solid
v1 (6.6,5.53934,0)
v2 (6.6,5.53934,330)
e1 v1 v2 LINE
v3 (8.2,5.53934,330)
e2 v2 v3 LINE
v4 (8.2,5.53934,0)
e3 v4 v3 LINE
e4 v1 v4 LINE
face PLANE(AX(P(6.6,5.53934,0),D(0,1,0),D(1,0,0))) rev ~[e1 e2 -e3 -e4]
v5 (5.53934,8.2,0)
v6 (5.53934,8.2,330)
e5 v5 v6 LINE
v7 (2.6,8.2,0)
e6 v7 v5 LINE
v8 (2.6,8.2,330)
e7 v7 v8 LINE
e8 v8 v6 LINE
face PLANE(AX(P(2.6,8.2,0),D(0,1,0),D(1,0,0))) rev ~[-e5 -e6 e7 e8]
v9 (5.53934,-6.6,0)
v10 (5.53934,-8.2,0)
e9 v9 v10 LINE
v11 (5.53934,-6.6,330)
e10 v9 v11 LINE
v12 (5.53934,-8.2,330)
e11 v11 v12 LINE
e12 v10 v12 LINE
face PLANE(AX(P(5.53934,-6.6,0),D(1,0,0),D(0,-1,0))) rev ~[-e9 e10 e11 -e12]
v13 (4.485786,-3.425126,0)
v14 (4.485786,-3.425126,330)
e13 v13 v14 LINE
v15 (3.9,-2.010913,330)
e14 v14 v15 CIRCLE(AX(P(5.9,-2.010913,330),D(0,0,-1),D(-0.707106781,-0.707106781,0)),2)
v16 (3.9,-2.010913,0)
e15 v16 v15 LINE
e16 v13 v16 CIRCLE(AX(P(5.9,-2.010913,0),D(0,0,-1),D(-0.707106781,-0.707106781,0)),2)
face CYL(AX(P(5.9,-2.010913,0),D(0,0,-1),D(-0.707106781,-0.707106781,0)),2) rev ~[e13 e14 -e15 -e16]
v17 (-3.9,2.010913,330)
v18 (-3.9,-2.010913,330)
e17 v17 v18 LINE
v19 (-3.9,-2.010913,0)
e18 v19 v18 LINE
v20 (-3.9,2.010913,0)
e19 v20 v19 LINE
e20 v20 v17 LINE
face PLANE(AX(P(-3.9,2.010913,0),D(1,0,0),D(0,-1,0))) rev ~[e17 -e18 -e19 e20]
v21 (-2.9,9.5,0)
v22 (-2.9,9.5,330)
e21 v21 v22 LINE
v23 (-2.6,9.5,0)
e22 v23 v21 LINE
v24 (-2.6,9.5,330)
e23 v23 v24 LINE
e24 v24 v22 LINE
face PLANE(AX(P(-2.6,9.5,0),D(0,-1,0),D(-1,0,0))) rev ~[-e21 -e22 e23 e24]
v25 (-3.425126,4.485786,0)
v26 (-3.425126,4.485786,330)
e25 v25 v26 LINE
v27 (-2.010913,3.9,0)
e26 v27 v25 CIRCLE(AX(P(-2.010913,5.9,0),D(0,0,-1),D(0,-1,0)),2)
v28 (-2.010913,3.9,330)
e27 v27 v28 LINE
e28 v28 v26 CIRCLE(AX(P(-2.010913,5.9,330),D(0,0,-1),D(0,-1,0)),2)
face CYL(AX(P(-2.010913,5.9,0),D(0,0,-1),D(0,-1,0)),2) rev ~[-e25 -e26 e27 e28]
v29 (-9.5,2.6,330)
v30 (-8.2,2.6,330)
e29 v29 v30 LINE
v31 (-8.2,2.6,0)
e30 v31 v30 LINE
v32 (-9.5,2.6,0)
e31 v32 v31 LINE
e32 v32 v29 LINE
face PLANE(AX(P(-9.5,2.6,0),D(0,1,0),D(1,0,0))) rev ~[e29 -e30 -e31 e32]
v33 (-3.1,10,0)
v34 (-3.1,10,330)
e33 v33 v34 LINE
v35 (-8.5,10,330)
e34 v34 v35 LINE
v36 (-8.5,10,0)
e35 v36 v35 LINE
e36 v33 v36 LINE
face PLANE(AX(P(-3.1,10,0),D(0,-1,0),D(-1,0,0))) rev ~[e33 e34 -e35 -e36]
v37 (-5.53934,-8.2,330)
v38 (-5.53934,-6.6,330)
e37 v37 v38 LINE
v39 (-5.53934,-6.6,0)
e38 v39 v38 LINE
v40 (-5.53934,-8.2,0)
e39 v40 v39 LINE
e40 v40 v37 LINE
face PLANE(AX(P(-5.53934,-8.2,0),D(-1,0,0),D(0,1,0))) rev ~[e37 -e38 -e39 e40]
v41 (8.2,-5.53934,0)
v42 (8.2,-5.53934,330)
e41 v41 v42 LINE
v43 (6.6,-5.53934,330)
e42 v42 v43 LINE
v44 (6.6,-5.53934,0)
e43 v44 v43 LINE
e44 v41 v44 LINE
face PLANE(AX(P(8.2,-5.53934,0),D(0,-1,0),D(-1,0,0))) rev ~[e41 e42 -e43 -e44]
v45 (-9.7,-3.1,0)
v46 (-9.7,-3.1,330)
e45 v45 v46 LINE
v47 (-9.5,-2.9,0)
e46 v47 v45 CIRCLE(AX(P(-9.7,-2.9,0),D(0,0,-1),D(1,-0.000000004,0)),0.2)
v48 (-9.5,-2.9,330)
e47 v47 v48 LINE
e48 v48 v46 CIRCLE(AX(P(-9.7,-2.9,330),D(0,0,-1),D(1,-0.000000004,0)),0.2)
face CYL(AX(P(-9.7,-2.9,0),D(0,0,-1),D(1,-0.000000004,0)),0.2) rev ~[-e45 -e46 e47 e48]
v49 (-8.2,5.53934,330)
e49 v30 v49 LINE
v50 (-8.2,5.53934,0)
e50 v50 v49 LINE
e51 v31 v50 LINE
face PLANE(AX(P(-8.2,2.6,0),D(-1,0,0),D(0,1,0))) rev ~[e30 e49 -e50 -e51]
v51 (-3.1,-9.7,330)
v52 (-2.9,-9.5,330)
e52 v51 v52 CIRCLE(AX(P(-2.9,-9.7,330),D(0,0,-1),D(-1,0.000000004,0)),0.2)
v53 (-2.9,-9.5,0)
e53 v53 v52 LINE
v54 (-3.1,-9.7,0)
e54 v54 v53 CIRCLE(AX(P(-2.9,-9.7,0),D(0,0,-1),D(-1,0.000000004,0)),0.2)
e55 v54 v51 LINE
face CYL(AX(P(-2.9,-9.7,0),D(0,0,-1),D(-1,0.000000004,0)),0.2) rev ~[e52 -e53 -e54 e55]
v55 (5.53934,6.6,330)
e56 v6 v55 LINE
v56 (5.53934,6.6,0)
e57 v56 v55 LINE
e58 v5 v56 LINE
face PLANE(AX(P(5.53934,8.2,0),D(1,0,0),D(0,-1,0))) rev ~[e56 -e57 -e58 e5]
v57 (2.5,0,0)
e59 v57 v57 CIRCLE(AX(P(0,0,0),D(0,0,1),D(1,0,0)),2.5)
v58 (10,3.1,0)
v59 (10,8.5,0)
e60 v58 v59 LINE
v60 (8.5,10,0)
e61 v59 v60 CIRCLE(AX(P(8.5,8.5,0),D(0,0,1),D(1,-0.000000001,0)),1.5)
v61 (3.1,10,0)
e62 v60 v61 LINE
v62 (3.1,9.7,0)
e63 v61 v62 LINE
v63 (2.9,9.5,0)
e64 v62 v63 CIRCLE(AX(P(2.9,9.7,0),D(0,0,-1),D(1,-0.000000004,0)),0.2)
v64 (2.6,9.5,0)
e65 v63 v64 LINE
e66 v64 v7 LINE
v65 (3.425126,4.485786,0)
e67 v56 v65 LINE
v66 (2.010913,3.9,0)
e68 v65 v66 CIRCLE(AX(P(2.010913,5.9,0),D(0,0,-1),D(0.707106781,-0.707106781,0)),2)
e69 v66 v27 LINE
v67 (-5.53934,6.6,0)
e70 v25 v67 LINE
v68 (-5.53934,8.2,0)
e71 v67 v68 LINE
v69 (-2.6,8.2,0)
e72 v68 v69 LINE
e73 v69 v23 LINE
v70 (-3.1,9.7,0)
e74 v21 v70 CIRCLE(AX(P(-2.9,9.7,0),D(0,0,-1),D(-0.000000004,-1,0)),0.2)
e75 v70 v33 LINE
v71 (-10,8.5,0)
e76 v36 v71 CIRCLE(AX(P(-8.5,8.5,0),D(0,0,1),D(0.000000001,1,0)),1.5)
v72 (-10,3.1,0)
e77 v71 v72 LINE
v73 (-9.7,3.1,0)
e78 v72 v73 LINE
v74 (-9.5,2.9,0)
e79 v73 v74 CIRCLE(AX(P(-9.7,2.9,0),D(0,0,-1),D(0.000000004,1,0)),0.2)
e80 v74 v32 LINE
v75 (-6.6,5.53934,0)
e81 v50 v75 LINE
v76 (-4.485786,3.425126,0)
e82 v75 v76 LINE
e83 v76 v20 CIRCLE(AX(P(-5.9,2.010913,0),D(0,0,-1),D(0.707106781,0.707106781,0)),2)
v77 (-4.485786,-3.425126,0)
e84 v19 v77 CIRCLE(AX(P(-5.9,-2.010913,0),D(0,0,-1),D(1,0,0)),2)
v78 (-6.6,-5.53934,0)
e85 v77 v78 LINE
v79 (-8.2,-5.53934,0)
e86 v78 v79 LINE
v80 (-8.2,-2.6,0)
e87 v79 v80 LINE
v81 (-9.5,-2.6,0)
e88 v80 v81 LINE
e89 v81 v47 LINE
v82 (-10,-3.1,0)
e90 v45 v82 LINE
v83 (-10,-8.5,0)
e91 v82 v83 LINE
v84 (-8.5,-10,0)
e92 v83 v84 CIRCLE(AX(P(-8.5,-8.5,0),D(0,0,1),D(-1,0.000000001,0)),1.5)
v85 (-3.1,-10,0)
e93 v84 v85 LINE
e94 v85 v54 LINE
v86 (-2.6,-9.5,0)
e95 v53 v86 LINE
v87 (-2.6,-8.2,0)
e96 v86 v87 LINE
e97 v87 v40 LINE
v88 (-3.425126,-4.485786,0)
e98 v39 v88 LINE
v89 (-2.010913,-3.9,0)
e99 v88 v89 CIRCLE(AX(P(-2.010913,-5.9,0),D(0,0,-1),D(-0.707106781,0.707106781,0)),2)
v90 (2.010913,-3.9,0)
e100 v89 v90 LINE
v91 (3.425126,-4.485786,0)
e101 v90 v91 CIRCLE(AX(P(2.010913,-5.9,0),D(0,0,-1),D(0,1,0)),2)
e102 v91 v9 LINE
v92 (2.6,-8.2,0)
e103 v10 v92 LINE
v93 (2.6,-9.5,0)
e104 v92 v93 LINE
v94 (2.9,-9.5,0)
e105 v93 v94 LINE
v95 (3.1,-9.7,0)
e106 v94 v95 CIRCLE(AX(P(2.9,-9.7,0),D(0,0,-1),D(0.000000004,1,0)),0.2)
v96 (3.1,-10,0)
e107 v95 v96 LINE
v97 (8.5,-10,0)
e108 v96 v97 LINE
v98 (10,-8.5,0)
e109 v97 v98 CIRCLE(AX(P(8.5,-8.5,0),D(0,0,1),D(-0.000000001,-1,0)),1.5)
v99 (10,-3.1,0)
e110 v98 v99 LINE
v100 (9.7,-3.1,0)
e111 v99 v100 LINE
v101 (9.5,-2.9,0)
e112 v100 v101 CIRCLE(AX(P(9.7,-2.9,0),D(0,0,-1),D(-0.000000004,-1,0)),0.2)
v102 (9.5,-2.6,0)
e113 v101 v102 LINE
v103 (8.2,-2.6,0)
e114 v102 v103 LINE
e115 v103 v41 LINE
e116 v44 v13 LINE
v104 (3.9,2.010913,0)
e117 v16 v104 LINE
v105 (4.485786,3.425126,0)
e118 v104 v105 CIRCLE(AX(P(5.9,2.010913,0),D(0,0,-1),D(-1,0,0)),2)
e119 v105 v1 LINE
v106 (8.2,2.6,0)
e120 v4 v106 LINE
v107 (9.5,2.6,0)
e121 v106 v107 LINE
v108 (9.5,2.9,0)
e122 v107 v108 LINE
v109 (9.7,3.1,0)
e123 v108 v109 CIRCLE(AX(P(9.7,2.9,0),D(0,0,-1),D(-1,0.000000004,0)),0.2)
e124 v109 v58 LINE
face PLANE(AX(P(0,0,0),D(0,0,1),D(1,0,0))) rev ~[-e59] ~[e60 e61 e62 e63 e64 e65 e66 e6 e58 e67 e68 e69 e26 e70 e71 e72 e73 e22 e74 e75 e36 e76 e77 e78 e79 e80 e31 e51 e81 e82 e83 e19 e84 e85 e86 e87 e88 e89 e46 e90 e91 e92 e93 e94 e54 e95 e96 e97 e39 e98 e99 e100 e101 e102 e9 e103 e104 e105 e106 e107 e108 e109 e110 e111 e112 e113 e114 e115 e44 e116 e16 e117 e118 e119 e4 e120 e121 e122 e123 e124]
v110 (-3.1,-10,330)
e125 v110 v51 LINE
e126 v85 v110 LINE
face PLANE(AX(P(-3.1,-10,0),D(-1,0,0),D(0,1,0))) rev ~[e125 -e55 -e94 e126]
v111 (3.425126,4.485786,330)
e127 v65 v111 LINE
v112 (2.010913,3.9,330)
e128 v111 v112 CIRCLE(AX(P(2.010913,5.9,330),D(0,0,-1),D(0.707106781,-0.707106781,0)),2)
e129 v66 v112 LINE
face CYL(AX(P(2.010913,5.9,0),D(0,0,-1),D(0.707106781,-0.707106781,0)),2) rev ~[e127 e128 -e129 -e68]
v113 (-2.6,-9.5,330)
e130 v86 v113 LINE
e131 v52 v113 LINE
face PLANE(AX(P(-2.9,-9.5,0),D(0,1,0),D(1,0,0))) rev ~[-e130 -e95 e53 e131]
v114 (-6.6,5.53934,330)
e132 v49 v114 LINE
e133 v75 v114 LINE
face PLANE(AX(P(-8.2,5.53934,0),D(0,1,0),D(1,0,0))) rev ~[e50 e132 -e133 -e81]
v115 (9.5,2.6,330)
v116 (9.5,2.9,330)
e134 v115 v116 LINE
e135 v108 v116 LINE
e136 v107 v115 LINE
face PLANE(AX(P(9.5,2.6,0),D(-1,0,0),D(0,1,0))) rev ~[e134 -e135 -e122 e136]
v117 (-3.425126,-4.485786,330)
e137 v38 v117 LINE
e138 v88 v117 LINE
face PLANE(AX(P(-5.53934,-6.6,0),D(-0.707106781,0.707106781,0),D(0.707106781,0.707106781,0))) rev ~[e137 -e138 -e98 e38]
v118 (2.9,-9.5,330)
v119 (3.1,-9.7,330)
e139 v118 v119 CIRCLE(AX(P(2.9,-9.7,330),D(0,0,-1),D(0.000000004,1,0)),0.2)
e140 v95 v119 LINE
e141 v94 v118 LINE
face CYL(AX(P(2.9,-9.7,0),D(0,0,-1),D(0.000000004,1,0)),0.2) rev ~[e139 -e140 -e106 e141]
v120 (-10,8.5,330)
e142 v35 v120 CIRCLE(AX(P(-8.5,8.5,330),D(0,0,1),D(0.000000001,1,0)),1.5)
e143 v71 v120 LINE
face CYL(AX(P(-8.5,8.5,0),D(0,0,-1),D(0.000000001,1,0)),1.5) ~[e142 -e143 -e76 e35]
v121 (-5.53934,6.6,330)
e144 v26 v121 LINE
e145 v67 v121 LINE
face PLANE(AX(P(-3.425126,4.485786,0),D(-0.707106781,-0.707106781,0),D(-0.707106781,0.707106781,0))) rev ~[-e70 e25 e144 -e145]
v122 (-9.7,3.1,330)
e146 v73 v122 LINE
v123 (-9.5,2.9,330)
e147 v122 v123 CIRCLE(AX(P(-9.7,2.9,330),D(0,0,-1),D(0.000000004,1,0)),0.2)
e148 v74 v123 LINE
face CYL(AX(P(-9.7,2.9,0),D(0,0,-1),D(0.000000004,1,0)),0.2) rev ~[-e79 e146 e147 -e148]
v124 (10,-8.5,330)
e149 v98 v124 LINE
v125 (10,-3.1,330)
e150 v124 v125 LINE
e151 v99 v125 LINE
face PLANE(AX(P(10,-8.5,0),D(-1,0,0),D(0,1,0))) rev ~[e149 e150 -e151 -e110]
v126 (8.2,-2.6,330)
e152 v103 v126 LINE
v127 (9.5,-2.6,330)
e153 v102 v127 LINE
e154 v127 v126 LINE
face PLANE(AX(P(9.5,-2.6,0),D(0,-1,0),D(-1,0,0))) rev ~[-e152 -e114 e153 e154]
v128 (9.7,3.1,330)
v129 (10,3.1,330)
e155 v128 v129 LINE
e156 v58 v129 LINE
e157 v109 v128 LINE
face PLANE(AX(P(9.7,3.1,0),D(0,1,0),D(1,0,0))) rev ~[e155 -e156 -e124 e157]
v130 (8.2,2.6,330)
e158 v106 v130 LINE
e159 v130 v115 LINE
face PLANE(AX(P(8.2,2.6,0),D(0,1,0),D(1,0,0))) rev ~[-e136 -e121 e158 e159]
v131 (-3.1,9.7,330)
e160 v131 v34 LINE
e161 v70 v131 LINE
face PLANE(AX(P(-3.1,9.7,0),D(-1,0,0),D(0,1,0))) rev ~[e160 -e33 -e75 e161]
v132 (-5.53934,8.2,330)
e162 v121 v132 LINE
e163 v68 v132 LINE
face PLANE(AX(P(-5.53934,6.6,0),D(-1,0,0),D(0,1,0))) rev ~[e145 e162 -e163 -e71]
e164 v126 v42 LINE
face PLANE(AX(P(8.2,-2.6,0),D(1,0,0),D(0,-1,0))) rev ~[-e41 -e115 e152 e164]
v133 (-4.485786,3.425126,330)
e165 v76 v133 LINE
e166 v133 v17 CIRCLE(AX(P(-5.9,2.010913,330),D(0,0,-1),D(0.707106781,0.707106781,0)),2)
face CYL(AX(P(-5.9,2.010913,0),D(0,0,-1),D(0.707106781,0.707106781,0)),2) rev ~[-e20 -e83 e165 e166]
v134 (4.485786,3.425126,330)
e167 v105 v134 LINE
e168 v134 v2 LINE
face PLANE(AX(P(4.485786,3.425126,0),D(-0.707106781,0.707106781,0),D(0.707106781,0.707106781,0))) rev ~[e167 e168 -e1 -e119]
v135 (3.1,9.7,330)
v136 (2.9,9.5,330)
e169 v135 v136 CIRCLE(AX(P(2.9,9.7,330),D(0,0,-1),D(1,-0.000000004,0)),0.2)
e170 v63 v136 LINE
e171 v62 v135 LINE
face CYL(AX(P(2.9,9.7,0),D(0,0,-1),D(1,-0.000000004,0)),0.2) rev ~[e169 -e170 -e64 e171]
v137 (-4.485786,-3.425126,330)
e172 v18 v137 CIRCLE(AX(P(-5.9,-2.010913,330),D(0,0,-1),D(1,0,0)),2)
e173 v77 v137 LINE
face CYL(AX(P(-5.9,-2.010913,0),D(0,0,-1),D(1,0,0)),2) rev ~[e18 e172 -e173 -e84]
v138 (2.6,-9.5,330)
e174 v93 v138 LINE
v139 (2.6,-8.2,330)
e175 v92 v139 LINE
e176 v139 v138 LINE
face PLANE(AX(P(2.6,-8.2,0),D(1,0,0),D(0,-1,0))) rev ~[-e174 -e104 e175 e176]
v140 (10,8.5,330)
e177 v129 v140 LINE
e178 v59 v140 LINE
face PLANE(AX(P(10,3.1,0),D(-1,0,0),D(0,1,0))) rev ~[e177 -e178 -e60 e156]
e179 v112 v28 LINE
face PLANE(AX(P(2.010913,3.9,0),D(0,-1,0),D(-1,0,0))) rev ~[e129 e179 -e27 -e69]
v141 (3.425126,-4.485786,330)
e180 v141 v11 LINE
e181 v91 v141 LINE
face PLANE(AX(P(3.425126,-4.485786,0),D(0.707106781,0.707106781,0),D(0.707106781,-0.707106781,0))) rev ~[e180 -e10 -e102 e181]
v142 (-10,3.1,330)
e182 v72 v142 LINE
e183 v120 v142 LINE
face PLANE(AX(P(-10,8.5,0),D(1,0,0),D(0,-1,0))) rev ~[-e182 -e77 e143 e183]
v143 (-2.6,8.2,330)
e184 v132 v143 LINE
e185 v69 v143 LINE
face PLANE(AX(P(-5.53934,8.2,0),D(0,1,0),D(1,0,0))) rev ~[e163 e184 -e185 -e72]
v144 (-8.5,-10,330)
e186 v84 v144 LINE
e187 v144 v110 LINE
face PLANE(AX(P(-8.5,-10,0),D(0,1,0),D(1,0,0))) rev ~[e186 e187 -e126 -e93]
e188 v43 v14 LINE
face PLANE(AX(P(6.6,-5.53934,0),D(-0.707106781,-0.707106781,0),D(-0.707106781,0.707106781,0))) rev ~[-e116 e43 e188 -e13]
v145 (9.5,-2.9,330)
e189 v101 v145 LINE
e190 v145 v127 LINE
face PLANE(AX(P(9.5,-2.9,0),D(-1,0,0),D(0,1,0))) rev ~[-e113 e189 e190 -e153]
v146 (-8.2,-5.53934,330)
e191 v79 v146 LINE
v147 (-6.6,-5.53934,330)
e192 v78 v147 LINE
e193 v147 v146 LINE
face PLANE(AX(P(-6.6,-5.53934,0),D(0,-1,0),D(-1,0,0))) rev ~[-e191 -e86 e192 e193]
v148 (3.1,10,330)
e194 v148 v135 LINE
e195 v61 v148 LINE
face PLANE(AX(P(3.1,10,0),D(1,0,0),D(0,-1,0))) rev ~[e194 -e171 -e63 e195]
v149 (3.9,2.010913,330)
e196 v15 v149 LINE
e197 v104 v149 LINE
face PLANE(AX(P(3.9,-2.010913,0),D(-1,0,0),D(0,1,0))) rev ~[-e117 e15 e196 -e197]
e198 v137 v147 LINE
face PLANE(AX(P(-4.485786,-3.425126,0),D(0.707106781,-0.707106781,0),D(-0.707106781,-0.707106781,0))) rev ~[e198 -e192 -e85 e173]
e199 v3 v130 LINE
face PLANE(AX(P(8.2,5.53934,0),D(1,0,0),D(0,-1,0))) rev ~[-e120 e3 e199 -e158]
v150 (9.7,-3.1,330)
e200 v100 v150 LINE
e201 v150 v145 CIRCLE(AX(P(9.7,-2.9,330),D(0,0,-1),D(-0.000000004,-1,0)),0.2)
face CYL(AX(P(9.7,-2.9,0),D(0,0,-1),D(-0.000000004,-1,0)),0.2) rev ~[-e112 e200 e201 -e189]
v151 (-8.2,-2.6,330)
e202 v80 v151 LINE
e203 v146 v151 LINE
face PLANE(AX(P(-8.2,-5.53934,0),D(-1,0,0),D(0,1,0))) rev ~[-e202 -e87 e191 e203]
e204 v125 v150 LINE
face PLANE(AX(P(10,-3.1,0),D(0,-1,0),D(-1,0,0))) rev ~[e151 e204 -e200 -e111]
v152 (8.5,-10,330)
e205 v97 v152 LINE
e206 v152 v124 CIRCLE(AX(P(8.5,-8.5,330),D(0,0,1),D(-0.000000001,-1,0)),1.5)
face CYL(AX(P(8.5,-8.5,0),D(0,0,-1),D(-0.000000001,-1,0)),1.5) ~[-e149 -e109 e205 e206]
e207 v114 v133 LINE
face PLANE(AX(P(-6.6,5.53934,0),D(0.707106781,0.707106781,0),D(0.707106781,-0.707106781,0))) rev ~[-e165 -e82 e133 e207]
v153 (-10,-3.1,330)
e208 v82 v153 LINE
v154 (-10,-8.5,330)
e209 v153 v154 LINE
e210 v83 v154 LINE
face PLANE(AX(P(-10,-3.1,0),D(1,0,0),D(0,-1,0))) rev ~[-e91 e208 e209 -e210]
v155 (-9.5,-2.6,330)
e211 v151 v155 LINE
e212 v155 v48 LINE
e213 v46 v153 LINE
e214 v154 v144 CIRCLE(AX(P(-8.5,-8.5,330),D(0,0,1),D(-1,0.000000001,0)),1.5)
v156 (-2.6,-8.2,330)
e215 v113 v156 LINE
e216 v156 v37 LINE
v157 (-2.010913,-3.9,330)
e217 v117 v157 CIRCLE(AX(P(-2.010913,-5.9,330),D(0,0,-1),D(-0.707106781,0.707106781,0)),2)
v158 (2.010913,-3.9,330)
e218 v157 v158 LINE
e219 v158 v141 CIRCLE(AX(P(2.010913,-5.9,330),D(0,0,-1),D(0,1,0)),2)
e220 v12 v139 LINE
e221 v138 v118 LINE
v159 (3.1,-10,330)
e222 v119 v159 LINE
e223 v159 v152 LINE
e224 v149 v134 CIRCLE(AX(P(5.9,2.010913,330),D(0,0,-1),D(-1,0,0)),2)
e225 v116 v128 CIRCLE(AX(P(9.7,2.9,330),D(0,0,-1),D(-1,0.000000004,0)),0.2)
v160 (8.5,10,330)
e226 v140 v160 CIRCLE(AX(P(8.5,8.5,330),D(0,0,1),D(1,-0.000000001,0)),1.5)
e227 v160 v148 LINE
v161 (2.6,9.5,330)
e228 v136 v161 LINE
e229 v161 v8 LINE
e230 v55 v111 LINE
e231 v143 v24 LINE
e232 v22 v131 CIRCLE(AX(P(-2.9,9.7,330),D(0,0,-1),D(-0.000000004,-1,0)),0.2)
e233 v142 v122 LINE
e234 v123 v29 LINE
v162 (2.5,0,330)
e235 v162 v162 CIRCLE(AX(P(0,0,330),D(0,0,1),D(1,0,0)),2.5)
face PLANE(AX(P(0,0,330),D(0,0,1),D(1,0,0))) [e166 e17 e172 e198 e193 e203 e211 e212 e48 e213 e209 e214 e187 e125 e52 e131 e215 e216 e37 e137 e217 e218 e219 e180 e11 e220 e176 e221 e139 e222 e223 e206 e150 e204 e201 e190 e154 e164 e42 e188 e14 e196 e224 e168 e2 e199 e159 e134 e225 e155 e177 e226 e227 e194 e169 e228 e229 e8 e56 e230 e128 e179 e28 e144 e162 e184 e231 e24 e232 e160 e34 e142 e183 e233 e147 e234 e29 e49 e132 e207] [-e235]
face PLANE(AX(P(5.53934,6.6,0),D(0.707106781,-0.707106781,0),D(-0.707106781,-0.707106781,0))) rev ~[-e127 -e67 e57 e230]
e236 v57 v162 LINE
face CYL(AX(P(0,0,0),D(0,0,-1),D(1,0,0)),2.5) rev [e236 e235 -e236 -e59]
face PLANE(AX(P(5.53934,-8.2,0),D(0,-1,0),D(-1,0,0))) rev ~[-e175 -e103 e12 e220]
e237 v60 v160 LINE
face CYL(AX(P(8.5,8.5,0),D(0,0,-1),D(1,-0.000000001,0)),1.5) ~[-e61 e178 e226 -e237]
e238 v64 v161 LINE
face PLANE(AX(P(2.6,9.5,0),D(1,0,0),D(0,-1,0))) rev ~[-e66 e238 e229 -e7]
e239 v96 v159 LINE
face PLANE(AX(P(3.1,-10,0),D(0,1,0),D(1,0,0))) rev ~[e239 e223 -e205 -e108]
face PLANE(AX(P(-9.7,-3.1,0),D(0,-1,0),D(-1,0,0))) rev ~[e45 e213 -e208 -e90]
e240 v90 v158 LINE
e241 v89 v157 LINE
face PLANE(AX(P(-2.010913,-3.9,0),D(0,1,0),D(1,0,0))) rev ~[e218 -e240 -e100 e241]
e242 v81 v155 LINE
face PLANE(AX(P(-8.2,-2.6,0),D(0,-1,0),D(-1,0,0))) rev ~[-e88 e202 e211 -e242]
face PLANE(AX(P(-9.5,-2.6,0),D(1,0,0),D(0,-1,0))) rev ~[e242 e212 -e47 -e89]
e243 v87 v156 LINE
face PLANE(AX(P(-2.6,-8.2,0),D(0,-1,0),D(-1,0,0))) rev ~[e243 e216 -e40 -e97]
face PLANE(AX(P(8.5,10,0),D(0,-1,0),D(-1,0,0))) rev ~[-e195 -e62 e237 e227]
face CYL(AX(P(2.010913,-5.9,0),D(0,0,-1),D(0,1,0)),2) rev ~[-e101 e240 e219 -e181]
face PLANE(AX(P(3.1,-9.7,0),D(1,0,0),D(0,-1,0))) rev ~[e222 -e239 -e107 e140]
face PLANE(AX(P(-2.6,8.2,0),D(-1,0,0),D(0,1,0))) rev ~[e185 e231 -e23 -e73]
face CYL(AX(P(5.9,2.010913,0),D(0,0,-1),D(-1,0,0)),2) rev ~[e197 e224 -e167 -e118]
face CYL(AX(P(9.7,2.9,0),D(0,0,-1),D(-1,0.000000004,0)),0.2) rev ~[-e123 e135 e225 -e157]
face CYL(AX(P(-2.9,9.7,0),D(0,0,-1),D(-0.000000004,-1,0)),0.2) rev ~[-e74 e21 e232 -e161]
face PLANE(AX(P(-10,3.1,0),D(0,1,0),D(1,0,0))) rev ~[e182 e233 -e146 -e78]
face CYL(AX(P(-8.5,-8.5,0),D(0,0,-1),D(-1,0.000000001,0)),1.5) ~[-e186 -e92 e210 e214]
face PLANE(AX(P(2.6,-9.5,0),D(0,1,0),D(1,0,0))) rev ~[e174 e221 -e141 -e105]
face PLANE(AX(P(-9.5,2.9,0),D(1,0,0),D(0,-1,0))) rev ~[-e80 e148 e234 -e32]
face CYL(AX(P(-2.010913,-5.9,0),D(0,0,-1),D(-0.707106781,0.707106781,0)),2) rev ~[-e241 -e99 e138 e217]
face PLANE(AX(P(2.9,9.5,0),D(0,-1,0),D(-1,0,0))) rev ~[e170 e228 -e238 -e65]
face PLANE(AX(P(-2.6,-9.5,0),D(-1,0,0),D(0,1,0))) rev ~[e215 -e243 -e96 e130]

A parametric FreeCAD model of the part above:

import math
import FreeCAD as App
import Part
import Sketcher
Q = App.Units.Quantity

doc = App.newDocument("Part")
body = doc.addObject("PartDesign::Body", "Body")

sketch1 = doc.addObject("Sketcher::SketchObject", "Sketch")
body.addObject(sketch1)
sketch1.AttachmentSupport = (doc.XY_Plane, [""])
sketch1.MapMode = "FlatFace"
sketch1.addGeometry(Part.ArcOfCircle(Part.Circle(App.Vector(-2.01, 5.9, 0), App.Vector(0, 0, 1), 2), math.radians(-135), math.radians(-90)), False)
sketch1.addGeometry(Part.LineSegment(App.Vector(-3.43, 4.49, 0), App.Vector(-5.54, 6.6, 0)), False)
sketch1.addGeometry(Part.LineSegment(App.Vector(-5.54, 6.6, 0), App.Vector(-5.54, 8.2, 0)), False)
sketch1.addGeometry(Part.LineSegment(App.Vector(-5.54, 8.2, 0), App.Vector(-2.6, 8.2, 0)), False)
sketch1.addGeometry(Part.LineSegment(App.Vector(-2.6, 8.2, 0), App.Vector(-2.6, 9.5, 0)), False)
sketch1.addGeometry(Part.LineSegment(App.Vector(-2.6, 9.5, 0), App.Vector(-2.9, 9.5, 0)), False)
sketch1.addGeometry(Part.ArcOfCircle(Part.Circle(App.Vector(-2.9, 9.7, 0), App.Vector(0, 0, 1), 0.2), math.radians(-180), math.radians(-90)), False)
sketch1.addGeometry(Part.LineSegment(App.Vector(-3.1, 9.7, 0), App.Vector(-3.1, 10, 0)), False)
sketch1.addGeometry(Part.LineSegment(App.Vector(-3.1, 10, 0), App.Vector(-8.5, 10, 0)), False)
sketch1.addGeometry(Part.ArcOfCircle(Part.Circle(App.Vector(-8.5, 8.5, 0), App.Vector(0, 0, 1), 1.5), math.radians(90), math.radians(180)), False)
sketch1.addGeometry(Part.LineSegment(App.Vector(-10, 8.5, 0), App.Vector(-10, 3.1, 0)), False)
sketch1.addGeometry(Part.LineSegment(App.Vector(-10, 3.1, 0), App.Vector(-9.7, 3.1, 0)), False)
sketch1.addGeometry(Part.ArcOfCircle(Part.Circle(App.Vector(-9.7, 2.9, 0), App.Vector(0, 0, 1), 0.2), math.radians(0), math.radians(90)), False)
sketch1.addGeometry(Part.LineSegment(App.Vector(-9.5, 2.9, 0), App.Vector(-9.5, 2.6, 0)), False)
sketch1.addGeometry(Part.LineSegment(App.Vector(-9.5, 2.6, 0), App.Vector(-8.2, 2.6, 0)), False)
sketch1.addGeometry(Part.LineSegment(App.Vector(-8.2, 2.6, 0), App.Vector(-8.2, 5.54, 0)), False)
sketch1.addGeometry(Part.LineSegment(App.Vector(-8.2, 5.54, 0), App.Vector(-6.6, 5.54, 0)), False)
sketch1.addGeometry(Part.LineSegment(App.Vector(-6.6, 5.54, 0), App.Vector(-4.49, 3.43, 0)), False)
sketch1.addGeometry(Part.ArcOfCircle(Part.Circle(App.Vector(-5.9, 2.01, 0), App.Vector(0, 0, 1), 2), math.radians(0), math.radians(45)), False)
sketch1.addGeometry(Part.LineSegment(App.Vector(-3.9, 2.01, 0), App.Vector(-3.9, -2.01, 0)), False)
sketch1.addGeometry(Part.ArcOfCircle(Part.Circle(App.Vector(-5.9, -2.01, 0), App.Vector(0, 0, 1), 2), math.radians(-45), math.radians(0)), False)
sketch1.addGeometry(Part.LineSegment(App.Vector(-4.49, -3.43, 0), App.Vector(-6.6, -5.54, 0)), False)
sketch1.addGeometry(Part.LineSegment(App.Vector(-6.6, -5.54, 0), App.Vector(-8.2, -5.54, 0)), False)
sketch1.addGeometry(Part.LineSegment(App.Vector(-8.2, -5.54, 0), App.Vector(-8.2, -2.6, 0)), False)
sketch1.addGeometry(Part.LineSegment(App.Vector(-8.2, -2.6, 0), App.Vector(-9.5, -2.6, 0)), False)
sketch1.addGeometry(Part.LineSegment(App.Vector(-9.5, -2.6, 0), App.Vector(-9.5, -2.9, 0)), False)
sketch1.addGeometry(Part.ArcOfCircle(Part.Circle(App.Vector(-9.7, -2.9, 0), App.Vector(0, 0, 1), 0.2), math.radians(-90), math.radians(0)), False)
sketch1.addGeometry(Part.LineSegment(App.Vector(-9.7, -3.1, 0), App.Vector(-10, -3.1, 0)), False)
sketch1.addGeometry(Part.LineSegment(App.Vector(-10, -3.1, 0), App.Vector(-10, -8.5, 0)), False)
sketch1.addGeometry(Part.ArcOfCircle(Part.Circle(App.Vector(-8.5, -8.5, 0), App.Vector(0, 0, 1), 1.5), math.radians(180), math.radians(270)), False)
sketch1.addGeometry(Part.LineSegment(App.Vector(-8.5, -10, 0), App.Vector(-3.1, -10, 0)), False)
sketch1.addGeometry(Part.LineSegment(App.Vector(-3.1, -10, 0), App.Vector(-3.1, -9.7, 0)), False)
sketch1.addGeometry(Part.ArcOfCircle(Part.Circle(App.Vector(-2.9, -9.7, 0), App.Vector(0, 0, 1), 0.2), math.radians(90), math.radians(180)), False)
sketch1.addGeometry(Part.LineSegment(App.Vector(-2.9, -9.5, 0), App.Vector(-2.6, -9.5, 0)), False)
sketch1.addGeometry(Part.LineSegment(App.Vector(-2.6, -9.5, 0), App.Vector(-2.6, -8.2, 0)), False)
sketch1.addGeometry(Part.LineSegment(App.Vector(-2.6, -8.2, 0), App.Vector(-5.54, -8.2, 0)), False)
sketch1.addGeometry(Part.LineSegment(App.Vector(-5.54, -8.2, 0), App.Vector(-5.54, -6.6, 0)), False)
sketch1.addGeometry(Part.LineSegment(App.Vector(-5.54, -6.6, 0), App.Vector(-3.43, -4.49, 0)), False)
sketch1.addGeometry(Part.ArcOfCircle(Part.Circle(App.Vector(-2.01, -5.9, 0), App.Vector(0, 0, 1), 2), math.radians(90), math.radians(135)), False)
sketch1.addGeometry(Part.LineSegment(App.Vector(-2.01, -3.9, 0), App.Vector(2.01, -3.9, 0)), False)
sketch1.addGeometry(Part.ArcOfCircle(Part.Circle(App.Vector(2.01, -5.9, 0), App.Vector(0, 0, 1), 2), math.radians(45), math.radians(90)), False)
sketch1.addGeometry(Part.LineSegment(App.Vector(3.43, -4.49, 0), App.Vector(5.54, -6.6, 0)), False)
sketch1.addGeometry(Part.LineSegment(App.Vector(5.54, -6.6, 0), App.Vector(5.54, -8.2, 0)), False)
sketch1.addGeometry(Part.LineSegment(App.Vector(5.54, -8.2, 0), App.Vector(2.6, -8.2, 0)), False)
sketch1.addGeometry(Part.LineSegment(App.Vector(2.6, -8.2, 0), App.Vector(2.6, -9.5, 0)), False)
sketch1.addGeometry(Part.LineSegment(App.Vector(2.6, -9.5, 0), App.Vector(2.9, -9.5, 0)), False)
sketch1.addGeometry(Part.ArcOfCircle(Part.Circle(App.Vector(2.9, -9.7, 0), App.Vector(0, 0, 1), 0.2), math.radians(0), math.radians(90)), False)
sketch1.addGeometry(Part.LineSegment(App.Vector(3.1, -9.7, 0), App.Vector(3.1, -10, 0)), False)
sketch1.addGeometry(Part.LineSegment(App.Vector(3.1, -10, 0), App.Vector(8.5, -10, 0)), False)
sketch1.addGeometry(Part.ArcOfCircle(Part.Circle(App.Vector(8.5, -8.5, 0), App.Vector(0, 0, 1), 1.5), math.radians(-90), math.radians(0)), False)
sketch1.addGeometry(Part.LineSegment(App.Vector(10, -8.5, 0), App.Vector(10, -3.1, 0)), False)
sketch1.addGeometry(Part.LineSegment(App.Vector(10, -3.1, 0), App.Vector(9.7, -3.1, 0)), False)
sketch1.addGeometry(Part.ArcOfCircle(Part.Circle(App.Vector(9.7, -2.9, 0), App.Vector(0, 0, 1), 0.2), math.radians(-180), math.radians(-90)), False)
sketch1.addGeometry(Part.LineSegment(App.Vector(9.5, -2.9, 0), App.Vector(9.5, -2.6, 0)), False)
sketch1.addGeometry(Part.LineSegment(App.Vector(9.5, -2.6, 0), App.Vector(8.2, -2.6, 0)), False)
sketch1.addGeometry(Part.LineSegment(App.Vector(8.2, -2.6, 0), App.Vector(8.2, -5.54, 0)), False)
sketch1.addGeometry(Part.LineSegment(App.Vector(8.2, -5.54, 0), App.Vector(6.6, -5.54, 0)), False)
sketch1.addGeometry(Part.LineSegment(App.Vector(6.6, -5.54, 0), App.Vector(4.49, -3.43, 0)), False)
sketch1.addGeometry(Part.ArcOfCircle(Part.Circle(App.Vector(5.9, -2.01, 0), App.Vector(0, 0, 1), 2), math.radians(180), math.radians(225)), False)
sketch1.addGeometry(Part.LineSegment(App.Vector(3.9, -2.01, 0), App.Vector(3.9, 2.01, 0)), False)
sketch1.addGeometry(Part.ArcOfCircle(Part.Circle(App.Vector(5.9, 2.01, 0), App.Vector(0, 0, 1), 2), math.radians(135), math.radians(180)), False)
sketch1.addGeometry(Part.LineSegment(App.Vector(4.49, 3.43, 0), App.Vector(6.6, 5.54, 0)), False)
sketch1.addGeometry(Part.LineSegment(App.Vector(6.6, 5.54, 0), App.Vector(8.2, 5.54, 0)), False)
sketch1.addGeometry(Part.LineSegment(App.Vector(8.2, 5.54, 0), App.Vector(8.2, 2.6, 0)), False)
sketch1.addGeometry(Part.LineSegment(App.Vector(8.2, 2.6, 0), App.Vector(9.5, 2.6, 0)), False)
sketch1.addGeometry(Part.LineSegment(App.Vector(9.5, 2.6, 0), App.Vector(9.5, 2.9, 0)), False)
sketch1.addGeometry(Part.ArcOfCircle(Part.Circle(App.Vector(9.7, 2.9, 0), App.Vector(0, 0, 1), 0.2), math.radians(90), math.radians(180)), False)
sketch1.addGeometry(Part.LineSegment(App.Vector(9.7, 3.1, 0), App.Vector(10, 3.1, 0)), False)
sketch1.addGeometry(Part.LineSegment(App.Vector(10, 3.1, 0), App.Vector(10, 8.5, 0)), False)
sketch1.addGeometry(Part.ArcOfCircle(Part.Circle(App.Vector(8.5, 8.5, 0), App.Vector(0, 0, 1), 1.5), math.radians(0), math.radians(90)), False)
sketch1.addGeometry(Part.LineSegment(App.Vector(8.5, 10, 0), App.Vector(3.1, 10, 0)), False)
sketch1.addGeometry(Part.LineSegment(App.Vector(3.1, 10, 0), App.Vector(3.1, 9.7, 0)), False)
sketch1.addGeometry(Part.ArcOfCircle(Part.Circle(App.Vector(2.9, 9.7, 0), App.Vector(0, 0, 1), 0.2), math.radians(-90), math.radians(0)), False)
sketch1.addGeometry(Part.LineSegment(App.Vector(2.9, 9.5, 0), App.Vector(2.6, 9.5, 0)), False)
sketch1.addGeometry(Part.LineSegment(App.Vector(2.6, 9.5, 0), App.Vector(2.6, 8.2, 0)), False)
sketch1.addGeometry(Part.LineSegment(App.Vector(2.6, 8.2, 0), App.Vector(5.54, 8.2, 0)), False)
sketch1.addGeometry(Part.LineSegment(App.Vector(5.54, 8.2, 0), App.Vector(5.54, 6.6, 0)), False)
sketch1.addGeometry(Part.LineSegment(App.Vector(5.54, 6.6, 0), App.Vector(3.43, 4.49, 0)), False)
sketch1.addGeometry(Part.ArcOfCircle(Part.Circle(App.Vector(2.01, 5.9, 0), App.Vector(0, 0, 1), 2), math.radians(-90), math.radians(-45)), False)
sketch1.addGeometry(Part.LineSegment(App.Vector(2.01, 3.9, 0), App.Vector(-2.01, 3.9, 0)), False)
sketch1.addGeometry(Part.Circle(App.Vector(0, 0, 0), App.Vector(0, 0, 1), 2.5), False)
sketch1.addConstraint(Sketcher.Constraint("Tangent", 0, 1, 1, 1))
sketch1.addConstraint(Sketcher.Constraint("Coincident", 1, 2, 2, 1))
sketch1.addConstraint(Sketcher.Constraint("Coincident", 2, 2, 3, 1))
sketch1.addConstraint(Sketcher.Constraint("Coincident", 3, 2, 4, 1))
sketch1.addConstraint(Sketcher.Constraint("Coincident", 4, 2, 5, 1))
sketch1.addConstraint(Sketcher.Constraint("Tangent", 5, 2, 6, 2))
sketch1.addConstraint(Sketcher.Constraint("Tangent", 6, 1, 7, 1))
sketch1.addConstraint(Sketcher.Constraint("Coincident", 7, 2, 8, 1))
sketch1.addConstraint(Sketcher.Constraint("Tangent", 8, 2, 9, 1))
sketch1.addConstraint(Sketcher.Constraint("Tangent", 9, 2, 10, 1))
sketch1.addConstraint(Sketcher.Constraint("Coincident", 10, 2, 11, 1))
sketch1.addConstraint(Sketcher.Constraint("Tangent", 11, 2, 12, 2))
sketch1.addConstraint(Sketcher.Constraint("Tangent", 12, 1, 13, 1))
sketch1.addConstraint(Sketcher.Constraint("Coincident", 13, 2, 14, 1))
sketch1.addConstraint(Sketcher.Constraint("Coincident", 14, 2, 15, 1))
sketch1.addConstraint(Sketcher.Constraint("Coincident", 15, 2, 16, 1))
sketch1.addConstraint(Sketcher.Constraint("Coincident", 16, 2, 17, 1))
sketch1.addConstraint(Sketcher.Constraint("Tangent", 17, 2, 18, 2))
sketch1.addConstraint(Sketcher.Constraint("Tangent", 18, 1, 19, 1))
sketch1.addConstraint(Sketcher.Constraint("Tangent", 19, 2, 20, 2))
sketch1.addConstraint(Sketcher.Constraint("Tangent", 20, 1, 21, 1))
sketch1.addConstraint(Sketcher.Constraint("Coincident", 21, 2, 22, 1))
sketch1.addConstraint(Sketcher.Constraint("Coincident", 22, 2, 23, 1))
sketch1.addConstraint(Sketcher.Constraint("Coincident", 23, 2, 24, 1))
sketch1.addConstraint(Sketcher.Constraint("Coincident", 24, 2, 25, 1))
sketch1.addConstraint(Sketcher.Constraint("Tangent", 25, 2, 26, 2))
sketch1.addConstraint(Sketcher.Constraint("Tangent", 26, 1, 27, 1))
sketch1.addConstraint(Sketcher.Constraint("Coincident", 27, 2, 28, 1))
sketch1.addConstraint(Sketcher.Constraint("Tangent", 28, 2, 29, 1))
sketch1.addConstraint(Sketcher.Constraint("Tangent", 29, 2, 30, 1))
sketch1.addConstraint(Sketcher.Constraint("Coincident", 30, 2, 31, 1))
sketch1.addConstraint(Sketcher.Constraint("Tangent", 31, 2, 32, 2))
sketch1.addConstraint(Sketcher.Constraint("Tangent", 32, 1, 33, 1))
sketch1.addConstraint(Sketcher.Constraint("Coincident", 33, 2, 34, 1))
sketch1.addConstraint(Sketcher.Constraint("Coincident", 34, 2, 35, 1))
sketch1.addConstraint(Sketcher.Constraint("Coincident", 35, 2, 36, 1))
sketch1.addConstraint(Sketcher.Constraint("Coincident", 36, 2, 37, 1))
sketch1.addConstraint(Sketcher.Constraint("Tangent", 37, 2, 38, 2))
sketch1.addConstraint(Sketcher.Constraint("Tangent", 38, 1, 39, 1))
sketch1.addConstraint(Sketcher.Constraint("Tangent", 39, 2, 40, 2))
sketch1.addConstraint(Sketcher.Constraint("Tangent", 40, 1, 41, 1))
sketch1.addConstraint(Sketcher.Constraint("Coincident", 41, 2, 42, 1))
sketch1.addConstraint(Sketcher.Constraint("Coincident", 42, 2, 43, 1))
sketch1.addConstraint(Sketcher.Constraint("Coincident", 43, 2, 44, 1))
sketch1.addConstraint(Sketcher.Constraint("Coincident", 44, 2, 45, 1))
sketch1.addConstraint(Sketcher.Constraint("Tangent", 45, 2, 46, 2))
sketch1.addConstraint(Sketcher.Constraint("Tangent", 46, 1, 47, 1))
sketch1.addConstraint(Sketcher.Constraint("Coincident", 47, 2, 48, 1))
sketch1.addConstraint(Sketcher.Constraint("Tangent", 48, 2, 49, 1))
sketch1.addConstraint(Sketcher.Constraint("Tangent", 49, 2, 50, 1))
sketch1.addConstraint(Sketcher.Constraint("Coincident", 50, 2, 51, 1))
sketch1.addConstraint(Sketcher.Constraint("Tangent", 51, 2, 52, 2))
sketch1.addConstraint(Sketcher.Constraint("Tangent", 52, 1, 53, 1))
sketch1.addConstraint(Sketcher.Constraint("Coincident", 53, 2, 54, 1))
sketch1.addConstraint(Sketcher.Constraint("Coincident", 54, 2, 55, 1))
sketch1.addConstraint(Sketcher.Constraint("Coincident", 55, 2, 56, 1))
sketch1.addConstraint(Sketcher.Constraint("Coincident", 56, 2, 57, 1))
sketch1.addConstraint(Sketcher.Constraint("Tangent", 57, 2, 58, 2))
sketch1.addConstraint(Sketcher.Constraint("Tangent", 58, 1, 59, 1))
sketch1.addConstraint(Sketcher.Constraint("Tangent", 59, 2, 60, 2))
sketch1.addConstraint(Sketcher.Constraint("Tangent", 60, 1, 61, 1))
sketch1.addConstraint(Sketcher.Constraint("Coincident", 61, 2, 62, 1))
sketch1.addConstraint(Sketcher.Constraint("Coincident", 62, 2, 63, 1))
sketch1.addConstraint(Sketcher.Constraint("Coincident", 63, 2, 64, 1))
sketch1.addConstraint(Sketcher.Constraint("Coincident", 64, 2, 65, 1))
sketch1.addConstraint(Sketcher.Constraint("Tangent", 65, 2, 66, 2))
sketch1.addConstraint(Sketcher.Constraint("Tangent", 66, 1, 67, 1))
sketch1.addConstraint(Sketcher.Constraint("Coincident", 67, 2, 68, 1))
sketch1.addConstraint(Sketcher.Constraint("Tangent", 68, 2, 69, 1))
sketch1.addConstraint(Sketcher.Constraint("Tangent", 69, 2, 70, 1))
sketch1.addConstraint(Sketcher.Constraint("Coincident", 70, 2, 71, 1))
sketch1.addConstraint(Sketcher.Constraint("Tangent", 71, 2, 72, 2))
sketch1.addConstraint(Sketcher.Constraint("Tangent", 72, 1, 73, 1))
sketch1.addConstraint(Sketcher.Constraint("Coincident", 73, 2, 74, 1))
sketch1.addConstraint(Sketcher.Constraint("Coincident", 74, 2, 75, 1))
sketch1.addConstraint(Sketcher.Constraint("Coincident", 75, 2, 76, 1))
sketch1.addConstraint(Sketcher.Constraint("Coincident", 76, 2, 77, 1))
sketch1.addConstraint(Sketcher.Constraint("Tangent", 77, 2, 78, 2))
sketch1.addConstraint(Sketcher.Constraint("Tangent", 78, 1, 79, 1))
sketch1.addConstraint(Sketcher.Constraint("Tangent", 79, 2, 0, 2))
sketch1.addConstraint(Sketcher.Constraint("Vertical", 2))
sketch1.addConstraint(Sketcher.Constraint("Horizontal", 3))
sketch1.addConstraint(Sketcher.Constraint("Vertical", 4))
sketch1.addConstraint(Sketcher.Constraint("Horizontal", 5))
sketch1.addConstraint(Sketcher.Constraint("Vertical", 7))
sketch1.addConstraint(Sketcher.Constraint("Horizontal", 8))
sketch1.addConstraint(Sketcher.Constraint("Vertical", 10))
sketch1.addConstraint(Sketcher.Constraint("Horizontal", 11))
sketch1.addConstraint(Sketcher.Constraint("Vertical", 13))
sketch1.addConstraint(Sketcher.Constraint("Horizontal", 14))
sketch1.addConstraint(Sketcher.Constraint("Vertical", 15))
sketch1.addConstraint(Sketcher.Constraint("Horizontal", 16))
sketch1.addConstraint(Sketcher.Constraint("Vertical", 19))
sketch1.addConstraint(Sketcher.Constraint("Horizontal", 22))
sketch1.addConstraint(Sketcher.Constraint("Vertical", 23))
sketch1.addConstraint(Sketcher.Constraint("Horizontal", 24))
sketch1.addConstraint(Sketcher.Constraint("Vertical", 25))
sketch1.addConstraint(Sketcher.Constraint("Horizontal", 27))
sketch1.addConstraint(Sketcher.Constraint("Vertical", 28))
sketch1.addConstraint(Sketcher.Constraint("Horizontal", 30))
sketch1.addConstraint(Sketcher.Constraint("Vertical", 31))
sketch1.addConstraint(Sketcher.Constraint("Horizontal", 33))
sketch1.addConstraint(Sketcher.Constraint("Vertical", 34))
sketch1.addConstraint(Sketcher.Constraint("Horizontal", 35))
sketch1.addConstraint(Sketcher.Constraint("Vertical", 36))
sketch1.addConstraint(Sketcher.Constraint("Horizontal", 39))
sketch1.addConstraint(Sketcher.Constraint("Vertical", 42))
sketch1.addConstraint(Sketcher.Constraint("Horizontal", 43))
sketch1.addConstraint(Sketcher.Constraint("Vertical", 44))
sketch1.addConstraint(Sketcher.Constraint("Horizontal", 45))
sketch1.addConstraint(Sketcher.Constraint("Vertical", 47))
sketch1.addConstraint(Sketcher.Constraint("Horizontal", 48))
sketch1.addConstraint(Sketcher.Constraint("Vertical", 50))
sketch1.addConstraint(Sketcher.Constraint("Horizontal", 51))
sketch1.addConstraint(Sketcher.Constraint("Vertical", 53))
sketch1.addConstraint(Sketcher.Constraint("Horizontal", 54))
sketch1.addConstraint(Sketcher.Constraint("Vertical", 55))
sketch1.addConstraint(Sketcher.Constraint("Horizontal", 56))
sketch1.addConstraint(Sketcher.Constraint("Vertical", 59))
sketch1.addConstraint(Sketcher.Constraint("Horizontal", 62))
sketch1.addConstraint(Sketcher.Constraint("Vertical", 63))
sketch1.addConstraint(Sketcher.Constraint("Horizontal", 64))
sketch1.addConstraint(Sketcher.Constraint("Vertical", 65))
sketch1.addConstraint(Sketcher.Constraint("Horizontal", 67))
sketch1.addConstraint(Sketcher.Constraint("Vertical", 68))
sketch1.addConstraint(Sketcher.Constraint("Horizontal", 70))
sketch1.addConstraint(Sketcher.Constraint("Vertical", 71))
sketch1.addConstraint(Sketcher.Constraint("Horizontal", 73))
sketch1.addConstraint(Sketcher.Constraint("Vertical", 74))
sketch1.addConstraint(Sketcher.Constraint("Horizontal", 75))
sketch1.addConstraint(Sketcher.Constraint("Vertical", 76))
sketch1.addConstraint(Sketcher.Constraint("Horizontal", 79))
sketch1.addConstraint(Sketcher.Constraint("Coincident", 80, 3, -1, 1))
sketch1.addConstraint(Sketcher.Constraint("Equal", 6, 12))
sketch1.addConstraint(Sketcher.Constraint("Equal", 0, 18))
sketch1.addConstraint(Sketcher.Constraint("Equal", 18, 20))
sketch1.addConstraint(Sketcher.Constraint("Equal", 12, 26))
sketch1.addConstraint(Sketcher.Constraint("Equal", 9, 29))
sketch1.addConstraint(Sketcher.Constraint("Equal", 26, 32))
sketch1.addConstraint(Sketcher.Constraint("Equal", 20, 38))
sketch1.addConstraint(Sketcher.Constraint("Equal", 38, 40))
sketch1.addConstraint(Sketcher.Constraint("Equal", 32, 46))
sketch1.addConstraint(Sketcher.Constraint("Equal", 29, 49))
sketch1.addConstraint(Sketcher.Constraint("Equal", 46, 52))
sketch1.addConstraint(Sketcher.Constraint("Equal", 40, 58))
sketch1.addConstraint(Sketcher.Constraint("Equal", 58, 60))
sketch1.addConstraint(Sketcher.Constraint("Equal", 52, 66))
sketch1.addConstraint(Sketcher.Constraint("Equal", 49, 69))
sketch1.addConstraint(Sketcher.Constraint("Equal", 66, 72))
sketch1.addConstraint(Sketcher.Constraint("Equal", 60, 78))
sketch1.addConstraint(Sketcher.Constraint("Symmetric", 0, 3, 40, 3, -1, 1))
sketch1.addConstraint(Sketcher.Constraint("Symmetric", 6, 3, 46, 3, -1, 1))
sketch1.addConstraint(Sketcher.Constraint("Symmetric", 9, 3, 49, 3, -1, 1))
sketch1.addConstraint(Sketcher.Constraint("Symmetric", 12, 3, 52, 3, -1, 1))
sketch1.addConstraint(Sketcher.Constraint("Symmetric", 18, 3, 58, 3, -1, 1))
sketch1.addConstraint(Sketcher.Constraint("Symmetric", 26, 3, 66, 3, -1, 1))
sketch1.addConstraint(Sketcher.Constraint("Symmetric", 29, 3, 69, 3, -1, 1))
sketch1.addConstraint(Sketcher.Constraint("Symmetric", 32, 3, 72, 3, -1, 1))
sketch1.addConstraint(Sketcher.Constraint("Symmetric", 1, 2, 41, 2, -1, 1))
sketch1.addConstraint(Sketcher.Constraint("Symmetric", 3, 2, 43, 2, -1, 1))
sketch1.addConstraint(Sketcher.Constraint("Symmetric", 14, 2, 54, 2, -1, 1))
sketch1.addConstraint(Sketcher.Constraint("Symmetric", 16, 2, 56, 2, -1, 1))
sketch1.addConstraint(Sketcher.Constraint("Symmetric", 20, 1, 60, 1, -1, 1))
sketch1.addConstraint(Sketcher.Constraint("Symmetric", 22, 2, 62, 2, -1, 1))
sketch1.addConstraint(Sketcher.Constraint("Symmetric", 34, 2, 74, 2, -1, 1))
sketch1.addConstraint(Sketcher.Constraint("Symmetric", 36, 2, 76, 2, -1, 1))
sketch1.addConstraint(Sketcher.Constraint("Symmetric", 32, 3, 46, 3, -2))
sketch1.addConstraint(Sketcher.Constraint("Symmetric", 29, 3, 49, 3, -2))
sketch1.addConstraint(Sketcher.Constraint("Symmetric", 26, 3, 52, 3, -2))
sketch1.addConstraint(Sketcher.Constraint("Symmetric", 37, 2, 40, 1, -2))
sketch1.addConstraint(Sketcher.Constraint("Symmetric", 35, 2, 42, 2, -2))
sketch1.addConstraint(Sketcher.Constraint("Symmetric", 23, 2, 54, 2, -2))
sketch1.addConstraint(Sketcher.Constraint("Symmetric", 21, 2, 56, 2, -2))
sketch1.addConstraint(Sketcher.Constraint("Parallel", 1, 17))
sketch1.addConstraint(Sketcher.Constraint("Perpendicular", 17, 21))
sketch1.addConstraint(Sketcher.Constraint("Parallel", 21, 37))
sketch1.addConstraint(Sketcher.Constraint("Parallel", 61, 77))
sketch1.addConstraint(Sketcher.Constraint("Horizontal", 14, 2, 63, 2))
sketch1.addConstraint(Sketcher.Constraint("Vertical", 4, 2, 33, 2))
sketch1.addConstraint(Sketcher.Constraint("Equal", 5, 11))
sketch1.addConstraint(Sketcher.Constraint("Equal", 62, 2))
sketch1.addConstraint(Sketcher.Constraint("Equal", 64, 4))
sketch1.addConstraint(Sketcher.Constraint("Equal", 73, 7))
sketch1.addConstraint(Sketcher.Constraint("Equal", 70, 10))
sketch1.addConstraint(Sketcher.Constraint("Equal", 7, 13))
sketch1.addConstraint(Sketcher.Constraint("Equal", 75, 15))
sketch1.addConstraint(Sketcher.Constraint("Equal", 79, 19))
sketch1.addConstraint(Sketcher.Constraint("Equal", 1, 17))
sketch1.addConstraint(Sketcher.Constraint("Diameter", 80, Q("5 mm")))
sketch1.addConstraint(Sketcher.Constraint("Radius", 0, Q("2 mm")))
sketch1.addConstraint(Sketcher.Constraint("Radius", 6, Q("0.2 mm")))
sketch1.addConstraint(Sketcher.Constraint("Radius", 9, Q("1.5 mm")))
sketch1.addConstraint(Sketcher.Constraint("DistanceX", 5, 2, 5, 1, Q("0.3 mm")))
sketch1.addConstraint(Sketcher.Constraint("DistanceX", 8, 2, 8, 1, Q("5.4 mm")))
sketch1.addConstraint(Sketcher.Constraint("DistanceX", 14, 1, 14, 2, Q("1.3 mm")))
sketch1.addConstraint(Sketcher.Constraint("DistanceX", 16, 1, 16, 2, Q("1.6 mm")))
sketch1.addConstraint(Sketcher.Constraint("DistanceY", -1, 1, 7, 2, Q("10 mm")))
sketch1.addConstraint(Sketcher.Constraint("DistanceY", -1, 1, 0, 3, Q("5.9 mm")))
sketch1.addConstraint(Sketcher.Constraint("DistanceX", 3, 1, 3, 2, Q("2.93934 mm")))
pad1 = doc.addObject("PartDesign::Pad", "Pad")
body.addObject(pad1)
pad1.Profile = sketch1
pad1.Length = 330

doc.recompute()
